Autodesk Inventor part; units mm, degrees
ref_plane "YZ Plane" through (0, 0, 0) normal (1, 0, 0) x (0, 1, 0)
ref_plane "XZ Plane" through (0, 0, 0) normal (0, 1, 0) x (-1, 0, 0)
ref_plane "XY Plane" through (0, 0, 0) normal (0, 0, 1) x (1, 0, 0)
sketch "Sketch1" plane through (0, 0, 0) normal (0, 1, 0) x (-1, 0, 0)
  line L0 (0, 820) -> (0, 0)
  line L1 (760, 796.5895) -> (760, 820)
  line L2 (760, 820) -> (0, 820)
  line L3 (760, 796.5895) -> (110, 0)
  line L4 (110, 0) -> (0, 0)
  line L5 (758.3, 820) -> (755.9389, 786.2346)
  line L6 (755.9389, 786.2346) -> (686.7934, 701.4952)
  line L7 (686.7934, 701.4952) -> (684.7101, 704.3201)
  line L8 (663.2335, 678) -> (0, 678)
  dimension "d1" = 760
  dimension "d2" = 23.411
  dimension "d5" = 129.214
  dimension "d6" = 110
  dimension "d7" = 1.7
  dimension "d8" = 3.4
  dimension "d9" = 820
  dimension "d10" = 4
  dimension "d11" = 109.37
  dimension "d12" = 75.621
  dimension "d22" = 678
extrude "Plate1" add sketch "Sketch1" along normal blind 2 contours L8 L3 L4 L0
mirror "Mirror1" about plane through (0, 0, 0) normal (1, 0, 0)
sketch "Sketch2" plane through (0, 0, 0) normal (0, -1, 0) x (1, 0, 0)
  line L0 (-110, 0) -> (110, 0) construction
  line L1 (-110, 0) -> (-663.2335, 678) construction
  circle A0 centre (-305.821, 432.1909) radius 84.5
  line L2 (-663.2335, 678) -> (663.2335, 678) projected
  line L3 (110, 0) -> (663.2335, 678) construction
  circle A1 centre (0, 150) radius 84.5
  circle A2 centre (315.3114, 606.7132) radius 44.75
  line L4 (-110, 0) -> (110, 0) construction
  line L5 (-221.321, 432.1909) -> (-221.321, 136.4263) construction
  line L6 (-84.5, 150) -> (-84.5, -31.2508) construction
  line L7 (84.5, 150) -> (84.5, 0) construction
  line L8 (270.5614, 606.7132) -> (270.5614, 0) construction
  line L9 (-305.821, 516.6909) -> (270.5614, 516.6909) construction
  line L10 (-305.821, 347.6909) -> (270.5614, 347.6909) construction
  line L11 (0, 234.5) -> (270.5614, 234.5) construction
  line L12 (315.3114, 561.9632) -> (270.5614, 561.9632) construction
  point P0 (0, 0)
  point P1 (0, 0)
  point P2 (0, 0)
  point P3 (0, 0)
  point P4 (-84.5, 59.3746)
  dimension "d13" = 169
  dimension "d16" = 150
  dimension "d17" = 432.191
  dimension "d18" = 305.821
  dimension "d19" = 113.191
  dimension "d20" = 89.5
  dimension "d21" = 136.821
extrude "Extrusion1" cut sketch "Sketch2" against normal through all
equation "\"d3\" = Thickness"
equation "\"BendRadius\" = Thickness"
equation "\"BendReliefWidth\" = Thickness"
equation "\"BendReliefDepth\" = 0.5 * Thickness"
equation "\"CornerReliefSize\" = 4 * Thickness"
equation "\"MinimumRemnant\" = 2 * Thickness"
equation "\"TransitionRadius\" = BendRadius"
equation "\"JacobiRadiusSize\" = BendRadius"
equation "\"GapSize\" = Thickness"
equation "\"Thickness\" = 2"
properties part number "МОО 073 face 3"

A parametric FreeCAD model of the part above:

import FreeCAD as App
import Part
import Sketcher

doc = App.newDocument("Part")
body = doc.addObject("PartDesign::Body", "Body")

sketch1 = body.newObject("Sketcher::SketchObject", "Sketch")
sketch1.AttachmentSupport = (doc.getObject("XZ_Plane"), [""])
sketch1.MapMode = "FlatFace"
sketch1.addGeometry(Part.LineSegment(App.Vector(-663, 678, 0), App.Vector(0, 678, 0)), False)
sketch1.addGeometry(Part.LineSegment(App.Vector(0, 678, 0), App.Vector(0, 0, 0)), False)
sketch1.addGeometry(Part.LineSegment(App.Vector(0, 0, 0), App.Vector(-110, 0, 0)), False)
sketch1.addGeometry(Part.LineSegment(App.Vector(-110, 0, 0), App.Vector(-663, 678, 0)), False)
sketch1.addConstraint(Sketcher.Constraint("Coincident", 0, 2, 1, 1))
sketch1.addConstraint(Sketcher.Constraint("Coincident", 1, 2, 2, 1))
sketch1.addConstraint(Sketcher.Constraint("Coincident", 2, 2, 3, 1))
sketch1.addConstraint(Sketcher.Constraint("Coincident", 3, 2, 0, 1))
sketch1.addConstraint(Sketcher.Constraint("Horizontal", 0))
sketch1.addConstraint(Sketcher.Constraint("Vertical", 1))
sketch1.addConstraint(Sketcher.Constraint("Horizontal", 2))
sketch1.addConstraint(Sketcher.Constraint("Coincident", 1, 2, -1, 1))
sketch1.addConstraint(Sketcher.Constraint("DistanceX", 2, 2, 2, 1, 110.0))
sketch1.addConstraint(Sketcher.Constraint("DistanceY", 1, 2, 1, 1, 678.0))
sketch1.addConstraint(Sketcher.Constraint("DistanceX", 0, 1, 0, 2, 663.2335))
pad1 = body.newObject("PartDesign::Pad", "Pad")
pad1.Profile = sketch1
pad1.Length = 2
pad1.Reversed = True
doc.recompute()

mirrored = body.newObject("PartDesign::Mirrored", "Mirrored")
mirrored.TransformMode = "Transform body"
mirrored.MirrorPlane = (doc.getObject("YZ_Plane"), [""])
body.Tip = mirrored

sketch2 = body.newObject("Sketcher::SketchObject", "Sketch001")
sketch2.AttachmentSupport = (doc.getObject("XZ_Plane"), [""])
sketch2.MapMode = "FlatFace"
sketch2.addGeometry(Part.Circle(App.Vector(-306, 432, 0), App.Vector(0, 0, 1), 84), False)
sketch2.addGeometry(Part.Circle(App.Vector(0, 150, 0), App.Vector(0, 0, 1), 84), False)
sketch2.addGeometry(Part.Circle(App.Vector(315, 607, 0), App.Vector(0, 0, 1), 45), False)
sketch2.addConstraint(Sketcher.Constraint("Equal", 0, 1))
sketch2.addConstraint(Sketcher.Constraint("PointOnObject", 1, 3, -2))
sketch2.addConstraint(Sketcher.Constraint("Diameter", 0, 169.0))
sketch2.addConstraint(Sketcher.Constraint("Diameter", 2, 89.5))
sketch2.addConstraint(Sketcher.Constraint("DistanceY", -1, 1, 1, 3, 150.0))
sketch2.addConstraint(Sketcher.Constraint("DistanceX", 0, 3, -1, 1, 305.821))
sketch2.addConstraint(Sketcher.Constraint("DistanceY", -1, 1, 0, 3, 432.191))
sketch2.addConstraint(Sketcher.Constraint("DistanceX", -1, 1, 2, 3, 315.3114))
sketch2.addConstraint(Sketcher.Constraint("DistanceY", -1, 1, 2, 3, 606.7132))
pocket1 = body.newObject("PartDesign::Pocket", "Pocket")
pocket1.Profile = sketch2
pocket1.Type = "ThroughAll"

doc.recompute()
